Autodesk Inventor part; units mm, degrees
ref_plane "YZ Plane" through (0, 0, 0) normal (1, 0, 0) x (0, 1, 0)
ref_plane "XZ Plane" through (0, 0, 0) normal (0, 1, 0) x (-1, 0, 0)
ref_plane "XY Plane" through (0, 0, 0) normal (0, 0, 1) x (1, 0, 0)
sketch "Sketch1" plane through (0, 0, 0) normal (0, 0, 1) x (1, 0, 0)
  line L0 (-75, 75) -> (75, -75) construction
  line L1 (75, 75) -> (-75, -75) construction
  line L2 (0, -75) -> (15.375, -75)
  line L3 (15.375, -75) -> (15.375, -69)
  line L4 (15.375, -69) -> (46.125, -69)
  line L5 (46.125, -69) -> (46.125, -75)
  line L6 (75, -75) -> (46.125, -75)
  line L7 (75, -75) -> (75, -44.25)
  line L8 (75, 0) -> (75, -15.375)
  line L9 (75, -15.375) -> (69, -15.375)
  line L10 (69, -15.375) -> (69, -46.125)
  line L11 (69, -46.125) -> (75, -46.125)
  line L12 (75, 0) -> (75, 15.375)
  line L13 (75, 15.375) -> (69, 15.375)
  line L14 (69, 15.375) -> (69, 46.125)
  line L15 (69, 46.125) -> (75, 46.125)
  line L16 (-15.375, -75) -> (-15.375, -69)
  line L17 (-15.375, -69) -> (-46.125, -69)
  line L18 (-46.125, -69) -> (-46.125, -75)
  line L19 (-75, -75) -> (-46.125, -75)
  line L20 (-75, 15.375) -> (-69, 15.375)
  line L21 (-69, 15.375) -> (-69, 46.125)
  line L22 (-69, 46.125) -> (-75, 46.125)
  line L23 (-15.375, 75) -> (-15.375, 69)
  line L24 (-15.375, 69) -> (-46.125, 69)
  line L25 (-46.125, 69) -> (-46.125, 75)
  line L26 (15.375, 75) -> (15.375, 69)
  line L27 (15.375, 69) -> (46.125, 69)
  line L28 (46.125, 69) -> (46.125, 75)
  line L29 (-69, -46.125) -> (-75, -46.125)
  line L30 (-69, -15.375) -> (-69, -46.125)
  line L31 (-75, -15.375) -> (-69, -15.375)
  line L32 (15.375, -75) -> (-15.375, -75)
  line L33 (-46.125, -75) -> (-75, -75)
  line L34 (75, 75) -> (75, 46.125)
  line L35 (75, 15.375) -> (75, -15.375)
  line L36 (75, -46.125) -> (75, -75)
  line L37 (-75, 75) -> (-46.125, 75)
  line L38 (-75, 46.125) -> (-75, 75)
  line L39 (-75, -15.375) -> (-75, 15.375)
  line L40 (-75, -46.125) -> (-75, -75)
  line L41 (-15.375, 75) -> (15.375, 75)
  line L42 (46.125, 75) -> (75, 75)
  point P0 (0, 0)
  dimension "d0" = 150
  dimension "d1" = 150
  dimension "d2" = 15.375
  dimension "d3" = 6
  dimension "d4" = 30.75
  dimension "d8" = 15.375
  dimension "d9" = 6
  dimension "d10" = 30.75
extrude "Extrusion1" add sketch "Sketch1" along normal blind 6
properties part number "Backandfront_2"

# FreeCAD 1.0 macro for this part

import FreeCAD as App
import Part
import Sketcher
from FreeCAD import Vector
Q = App.Units.Quantity

doc = App.newDocument("Part")
body = doc.addObject("PartDesign::Body", "Body")

# Sketch on XY plane
sketch1 = doc.addObject("Sketcher::SketchObject", "Sketch")
body.addObject(sketch1)
sketch1.AttachmentSupport = (doc.XY_Plane, [""])
sketch1.MapMode = "FlatFace"
sketch1.addGeometry([
    Part.LineSegment(Vector(-15, -75, 0), Vector(15, -75, 0)),  # 0
    Part.LineSegment(Vector(15, -75, 0), Vector(15, -69, 0)),  # 1
    Part.LineSegment(Vector(15, -69, 0), Vector(46, -69, 0)),  # 2
    Part.LineSegment(Vector(46, -69, 0), Vector(46, -75, 0)),  # 3
    Part.LineSegment(Vector(46, -75, 0), Vector(75, -75, 0)),  # 4
    Part.LineSegment(Vector(75, -75, 0), Vector(75, -46, 0)),  # 5
    Part.LineSegment(Vector(75, -46, 0), Vector(69, -46, 0)),  # 6
    Part.LineSegment(Vector(69, -46, 0), Vector(69, -15, 0)),  # 7
    Part.LineSegment(Vector(69, -15, 0), Vector(75, -15, 0)),  # 8
    Part.LineSegment(Vector(75, -15, 0), Vector(75, 15, 0)),  # 9
    Part.LineSegment(Vector(75, 15, 0), Vector(69, 15, 0)),  # 10
    Part.LineSegment(Vector(69, 15, 0), Vector(69, 46, 0)),  # 11
    Part.LineSegment(Vector(69, 46, 0), Vector(75, 46, 0)),  # 12
    Part.LineSegment(Vector(75, 46, 0), Vector(75, 75, 0)),  # 13
    Part.LineSegment(Vector(75, 75, 0), Vector(46, 75, 0)),  # 14
    Part.LineSegment(Vector(46, 75, 0), Vector(46, 69, 0)),  # 15
    Part.LineSegment(Vector(46, 69, 0), Vector(15, 69, 0)),  # 16
    Part.LineSegment(Vector(15, 69, 0), Vector(15, 75, 0)),  # 17
    Part.LineSegment(Vector(15, 75, 0), Vector(-15, 75, 0)),  # 18
    Part.LineSegment(Vector(-15, 75, 0), Vector(-15, 69, 0)),  # 19
    Part.LineSegment(Vector(-15, 69, 0), Vector(-46, 69, 0)),  # 20
    Part.LineSegment(Vector(-46, 69, 0), Vector(-46, 75, 0)),  # 21
    Part.LineSegment(Vector(-46, 75, 0), Vector(-75, 75, 0)),  # 22
    Part.LineSegment(Vector(-75, 75, 0), Vector(-75, 46, 0)),  # 23
    Part.LineSegment(Vector(-75, 46, 0), Vector(-69, 46, 0)),  # 24
    Part.LineSegment(Vector(-69, 46, 0), Vector(-69, 15, 0)),  # 25
    Part.LineSegment(Vector(-69, 15, 0), Vector(-75, 15, 0)),  # 26
    Part.LineSegment(Vector(-75, 15, 0), Vector(-75, -15, 0)),  # 27
    Part.LineSegment(Vector(-75, -15, 0), Vector(-69, -15, 0)),  # 28
    Part.LineSegment(Vector(-69, -15, 0), Vector(-69, -46, 0)),  # 29
    Part.LineSegment(Vector(-69, -46, 0), Vector(-75, -46, 0)),  # 30
    Part.LineSegment(Vector(-75, -46, 0), Vector(-75, -75, 0)),  # 31
    Part.LineSegment(Vector(-75, -75, 0), Vector(-46, -75, 0)),  # 32
    Part.LineSegment(Vector(-46, -75, 0), Vector(-46, -69, 0)),  # 33
    Part.LineSegment(Vector(-46, -69, 0), Vector(-15, -69, 0)),  # 34
    Part.LineSegment(Vector(-15, -69, 0), Vector(-15, -75, 0)),  # 35
], False)
sketch1.addConstraint([
    Sketcher.Constraint("Coincident", 0, 2, 1, 1),
    Sketcher.Constraint("Coincident", 1, 2, 2, 1),
    Sketcher.Constraint("Coincident", 2, 2, 3, 1),
    Sketcher.Constraint("Coincident", 3, 2, 4, 1),
    Sketcher.Constraint("Coincident", 4, 2, 5, 1),
    Sketcher.Constraint("Coincident", 5, 2, 6, 1),
    Sketcher.Constraint("Coincident", 6, 2, 7, 1),
    Sketcher.Constraint("Coincident", 7, 2, 8, 1),
    Sketcher.Constraint("Coincident", 8, 2, 9, 1),
    Sketcher.Constraint("Coincident", 9, 2, 10, 1),
    Sketcher.Constraint("Coincident", 10, 2, 11, 1),
    Sketcher.Constraint("Coincident", 11, 2, 12, 1),
    Sketcher.Constraint("Coincident", 12, 2, 13, 1),
    Sketcher.Constraint("Coincident", 13, 2, 14, 1),
    Sketcher.Constraint("Coincident", 14, 2, 15, 1),
    Sketcher.Constraint("Coincident", 15, 2, 16, 1),
    Sketcher.Constraint("Coincident", 16, 2, 17, 1),
    Sketcher.Constraint("Coincident", 17, 2, 18, 1),
    Sketcher.Constraint("Coincident", 18, 2, 19, 1),
    Sketcher.Constraint("Coincident", 19, 2, 20, 1),
    Sketcher.Constraint("Coincident", 20, 2, 21, 1),
    Sketcher.Constraint("Coincident", 21, 2, 22, 1),
    Sketcher.Constraint("Coincident", 22, 2, 23, 1),
    Sketcher.Constraint("Coincident", 23, 2, 24, 1),
    Sketcher.Constraint("Coincident", 24, 2, 25, 1),
    Sketcher.Constraint("Coincident", 25, 2, 26, 1),
    Sketcher.Constraint("Coincident", 26, 2, 27, 1),
    Sketcher.Constraint("Coincident", 27, 2, 28, 1),
    Sketcher.Constraint("Coincident", 28, 2, 29, 1),
    Sketcher.Constraint("Coincident", 29, 2, 30, 1),
    Sketcher.Constraint("Coincident", 30, 2, 31, 1),
    Sketcher.Constraint("Coincident", 31, 2, 32, 1),
    Sketcher.Constraint("Coincident", 32, 2, 33, 1),
    Sketcher.Constraint("Coincident", 33, 2, 34, 1),
    Sketcher.Constraint("Coincident", 34, 2, 35, 1),
    Sketcher.Constraint("Coincident", 35, 2, 0, 1),
    Sketcher.Constraint("Horizontal", 0),
    Sketcher.Constraint("Vertical", 1),
    Sketcher.Constraint("Horizontal", 2),
    Sketcher.Constraint("Vertical", 3),
    Sketcher.Constraint("Horizontal", 4),
    Sketcher.Constraint("Vertical", 5),
    Sketcher.Constraint("Horizontal", 6),
    Sketcher.Constraint("Vertical", 7),
    Sketcher.Constraint("Horizontal", 8),
    Sketcher.Constraint("Vertical", 9),
    Sketcher.Constraint("Horizontal", 10),
    Sketcher.Constraint("Vertical", 11),
    Sketcher.Constraint("Horizontal", 12),
    Sketcher.Constraint("Vertical", 13),
    Sketcher.Constraint("Horizontal", 14),
    Sketcher.Constraint("Vertical", 15),
    Sketcher.Constraint("Horizontal", 16),
    Sketcher.Constraint("Vertical", 17),
    Sketcher.Constraint("Horizontal", 18),
    Sketcher.Constraint("Vertical", 19),
    Sketcher.Constraint("Horizontal", 20),
    Sketcher.Constraint("Vertical", 21),
    Sketcher.Constraint("Horizontal", 22),
    Sketcher.Constraint("Vertical", 23),
    Sketcher.Constraint("Horizontal", 24),
    Sketcher.Constraint("Vertical", 25),
    Sketcher.Constraint("Horizontal", 26),
    Sketcher.Constraint("Vertical", 27),
    Sketcher.Constraint("Horizontal", 28),
    Sketcher.Constraint("Vertical", 29),
    Sketcher.Constraint("Horizontal", 30),
    Sketcher.Constraint("Vertical", 31),
    Sketcher.Constraint("Horizontal", 32),
    Sketcher.Constraint("Vertical", 33),
    Sketcher.Constraint("Horizontal", 34),
    Sketcher.Constraint("Vertical", 35),
    Sketcher.Constraint("Symmetric", 0, 2, 18, 2, -1, 1),
    Sketcher.Constraint("Symmetric", 2, 2, 20, 2, -1, 1),
    Sketcher.Constraint("Symmetric", 4, 2, 22, 2, -1, 1),
    Sketcher.Constraint("Symmetric", 6, 2, 24, 2, -1, 1),
    Sketcher.Constraint("Symmetric", 8, 2, 26, 2, -1, 1),
    Sketcher.Constraint("Symmetric", 10, 2, 28, 2, -1, 1),
    Sketcher.Constraint("Symmetric", 12, 2, 30, 2, -1, 1),
    Sketcher.Constraint("Symmetric", 14, 2, 32, 2, -1, 1),
    Sketcher.Constraint("Symmetric", 16, 2, 34, 2, -1, 1),
    Sketcher.Constraint("Symmetric", 16, 2, 19, 2, -2),
    Sketcher.Constraint("Symmetric", 14, 2, 21, 2, -2),
    Sketcher.Constraint("Symmetric", 12, 2, 23, 2, -2),
    Sketcher.Constraint("Symmetric", 10, 2, 25, 2, -2),
    Sketcher.Constraint("Horizontal", 0, 2, 3, 2),
    Sketcher.Constraint("Vertical", 5, 2, 8, 2),
    Sketcher.Constraint("Equal", 0, 2),
    Sketcher.Constraint("Equal", 30, 1),
    Sketcher.Constraint("Equal", 32, 5),
    Sketcher.Constraint("Equal", 34, 7),
    Sketcher.Constraint("Equal", 7, 9),
    Sketcher.Constraint("DistanceX", 6, 2, 6, 1, Q("6 mm")),
    Sketcher.Constraint("DistanceX", 0, 1, 0, 2, Q("30.75 mm")),
    Sketcher.Constraint("DistanceY", 0, 2, -1, 1, Q("75 mm")),
])
pad1 = doc.addObject("PartDesign::Pad", "Pad")
body.addObject(pad1)
pad1.Profile = sketch1
pad1.Length = 6

doc.recompute()
